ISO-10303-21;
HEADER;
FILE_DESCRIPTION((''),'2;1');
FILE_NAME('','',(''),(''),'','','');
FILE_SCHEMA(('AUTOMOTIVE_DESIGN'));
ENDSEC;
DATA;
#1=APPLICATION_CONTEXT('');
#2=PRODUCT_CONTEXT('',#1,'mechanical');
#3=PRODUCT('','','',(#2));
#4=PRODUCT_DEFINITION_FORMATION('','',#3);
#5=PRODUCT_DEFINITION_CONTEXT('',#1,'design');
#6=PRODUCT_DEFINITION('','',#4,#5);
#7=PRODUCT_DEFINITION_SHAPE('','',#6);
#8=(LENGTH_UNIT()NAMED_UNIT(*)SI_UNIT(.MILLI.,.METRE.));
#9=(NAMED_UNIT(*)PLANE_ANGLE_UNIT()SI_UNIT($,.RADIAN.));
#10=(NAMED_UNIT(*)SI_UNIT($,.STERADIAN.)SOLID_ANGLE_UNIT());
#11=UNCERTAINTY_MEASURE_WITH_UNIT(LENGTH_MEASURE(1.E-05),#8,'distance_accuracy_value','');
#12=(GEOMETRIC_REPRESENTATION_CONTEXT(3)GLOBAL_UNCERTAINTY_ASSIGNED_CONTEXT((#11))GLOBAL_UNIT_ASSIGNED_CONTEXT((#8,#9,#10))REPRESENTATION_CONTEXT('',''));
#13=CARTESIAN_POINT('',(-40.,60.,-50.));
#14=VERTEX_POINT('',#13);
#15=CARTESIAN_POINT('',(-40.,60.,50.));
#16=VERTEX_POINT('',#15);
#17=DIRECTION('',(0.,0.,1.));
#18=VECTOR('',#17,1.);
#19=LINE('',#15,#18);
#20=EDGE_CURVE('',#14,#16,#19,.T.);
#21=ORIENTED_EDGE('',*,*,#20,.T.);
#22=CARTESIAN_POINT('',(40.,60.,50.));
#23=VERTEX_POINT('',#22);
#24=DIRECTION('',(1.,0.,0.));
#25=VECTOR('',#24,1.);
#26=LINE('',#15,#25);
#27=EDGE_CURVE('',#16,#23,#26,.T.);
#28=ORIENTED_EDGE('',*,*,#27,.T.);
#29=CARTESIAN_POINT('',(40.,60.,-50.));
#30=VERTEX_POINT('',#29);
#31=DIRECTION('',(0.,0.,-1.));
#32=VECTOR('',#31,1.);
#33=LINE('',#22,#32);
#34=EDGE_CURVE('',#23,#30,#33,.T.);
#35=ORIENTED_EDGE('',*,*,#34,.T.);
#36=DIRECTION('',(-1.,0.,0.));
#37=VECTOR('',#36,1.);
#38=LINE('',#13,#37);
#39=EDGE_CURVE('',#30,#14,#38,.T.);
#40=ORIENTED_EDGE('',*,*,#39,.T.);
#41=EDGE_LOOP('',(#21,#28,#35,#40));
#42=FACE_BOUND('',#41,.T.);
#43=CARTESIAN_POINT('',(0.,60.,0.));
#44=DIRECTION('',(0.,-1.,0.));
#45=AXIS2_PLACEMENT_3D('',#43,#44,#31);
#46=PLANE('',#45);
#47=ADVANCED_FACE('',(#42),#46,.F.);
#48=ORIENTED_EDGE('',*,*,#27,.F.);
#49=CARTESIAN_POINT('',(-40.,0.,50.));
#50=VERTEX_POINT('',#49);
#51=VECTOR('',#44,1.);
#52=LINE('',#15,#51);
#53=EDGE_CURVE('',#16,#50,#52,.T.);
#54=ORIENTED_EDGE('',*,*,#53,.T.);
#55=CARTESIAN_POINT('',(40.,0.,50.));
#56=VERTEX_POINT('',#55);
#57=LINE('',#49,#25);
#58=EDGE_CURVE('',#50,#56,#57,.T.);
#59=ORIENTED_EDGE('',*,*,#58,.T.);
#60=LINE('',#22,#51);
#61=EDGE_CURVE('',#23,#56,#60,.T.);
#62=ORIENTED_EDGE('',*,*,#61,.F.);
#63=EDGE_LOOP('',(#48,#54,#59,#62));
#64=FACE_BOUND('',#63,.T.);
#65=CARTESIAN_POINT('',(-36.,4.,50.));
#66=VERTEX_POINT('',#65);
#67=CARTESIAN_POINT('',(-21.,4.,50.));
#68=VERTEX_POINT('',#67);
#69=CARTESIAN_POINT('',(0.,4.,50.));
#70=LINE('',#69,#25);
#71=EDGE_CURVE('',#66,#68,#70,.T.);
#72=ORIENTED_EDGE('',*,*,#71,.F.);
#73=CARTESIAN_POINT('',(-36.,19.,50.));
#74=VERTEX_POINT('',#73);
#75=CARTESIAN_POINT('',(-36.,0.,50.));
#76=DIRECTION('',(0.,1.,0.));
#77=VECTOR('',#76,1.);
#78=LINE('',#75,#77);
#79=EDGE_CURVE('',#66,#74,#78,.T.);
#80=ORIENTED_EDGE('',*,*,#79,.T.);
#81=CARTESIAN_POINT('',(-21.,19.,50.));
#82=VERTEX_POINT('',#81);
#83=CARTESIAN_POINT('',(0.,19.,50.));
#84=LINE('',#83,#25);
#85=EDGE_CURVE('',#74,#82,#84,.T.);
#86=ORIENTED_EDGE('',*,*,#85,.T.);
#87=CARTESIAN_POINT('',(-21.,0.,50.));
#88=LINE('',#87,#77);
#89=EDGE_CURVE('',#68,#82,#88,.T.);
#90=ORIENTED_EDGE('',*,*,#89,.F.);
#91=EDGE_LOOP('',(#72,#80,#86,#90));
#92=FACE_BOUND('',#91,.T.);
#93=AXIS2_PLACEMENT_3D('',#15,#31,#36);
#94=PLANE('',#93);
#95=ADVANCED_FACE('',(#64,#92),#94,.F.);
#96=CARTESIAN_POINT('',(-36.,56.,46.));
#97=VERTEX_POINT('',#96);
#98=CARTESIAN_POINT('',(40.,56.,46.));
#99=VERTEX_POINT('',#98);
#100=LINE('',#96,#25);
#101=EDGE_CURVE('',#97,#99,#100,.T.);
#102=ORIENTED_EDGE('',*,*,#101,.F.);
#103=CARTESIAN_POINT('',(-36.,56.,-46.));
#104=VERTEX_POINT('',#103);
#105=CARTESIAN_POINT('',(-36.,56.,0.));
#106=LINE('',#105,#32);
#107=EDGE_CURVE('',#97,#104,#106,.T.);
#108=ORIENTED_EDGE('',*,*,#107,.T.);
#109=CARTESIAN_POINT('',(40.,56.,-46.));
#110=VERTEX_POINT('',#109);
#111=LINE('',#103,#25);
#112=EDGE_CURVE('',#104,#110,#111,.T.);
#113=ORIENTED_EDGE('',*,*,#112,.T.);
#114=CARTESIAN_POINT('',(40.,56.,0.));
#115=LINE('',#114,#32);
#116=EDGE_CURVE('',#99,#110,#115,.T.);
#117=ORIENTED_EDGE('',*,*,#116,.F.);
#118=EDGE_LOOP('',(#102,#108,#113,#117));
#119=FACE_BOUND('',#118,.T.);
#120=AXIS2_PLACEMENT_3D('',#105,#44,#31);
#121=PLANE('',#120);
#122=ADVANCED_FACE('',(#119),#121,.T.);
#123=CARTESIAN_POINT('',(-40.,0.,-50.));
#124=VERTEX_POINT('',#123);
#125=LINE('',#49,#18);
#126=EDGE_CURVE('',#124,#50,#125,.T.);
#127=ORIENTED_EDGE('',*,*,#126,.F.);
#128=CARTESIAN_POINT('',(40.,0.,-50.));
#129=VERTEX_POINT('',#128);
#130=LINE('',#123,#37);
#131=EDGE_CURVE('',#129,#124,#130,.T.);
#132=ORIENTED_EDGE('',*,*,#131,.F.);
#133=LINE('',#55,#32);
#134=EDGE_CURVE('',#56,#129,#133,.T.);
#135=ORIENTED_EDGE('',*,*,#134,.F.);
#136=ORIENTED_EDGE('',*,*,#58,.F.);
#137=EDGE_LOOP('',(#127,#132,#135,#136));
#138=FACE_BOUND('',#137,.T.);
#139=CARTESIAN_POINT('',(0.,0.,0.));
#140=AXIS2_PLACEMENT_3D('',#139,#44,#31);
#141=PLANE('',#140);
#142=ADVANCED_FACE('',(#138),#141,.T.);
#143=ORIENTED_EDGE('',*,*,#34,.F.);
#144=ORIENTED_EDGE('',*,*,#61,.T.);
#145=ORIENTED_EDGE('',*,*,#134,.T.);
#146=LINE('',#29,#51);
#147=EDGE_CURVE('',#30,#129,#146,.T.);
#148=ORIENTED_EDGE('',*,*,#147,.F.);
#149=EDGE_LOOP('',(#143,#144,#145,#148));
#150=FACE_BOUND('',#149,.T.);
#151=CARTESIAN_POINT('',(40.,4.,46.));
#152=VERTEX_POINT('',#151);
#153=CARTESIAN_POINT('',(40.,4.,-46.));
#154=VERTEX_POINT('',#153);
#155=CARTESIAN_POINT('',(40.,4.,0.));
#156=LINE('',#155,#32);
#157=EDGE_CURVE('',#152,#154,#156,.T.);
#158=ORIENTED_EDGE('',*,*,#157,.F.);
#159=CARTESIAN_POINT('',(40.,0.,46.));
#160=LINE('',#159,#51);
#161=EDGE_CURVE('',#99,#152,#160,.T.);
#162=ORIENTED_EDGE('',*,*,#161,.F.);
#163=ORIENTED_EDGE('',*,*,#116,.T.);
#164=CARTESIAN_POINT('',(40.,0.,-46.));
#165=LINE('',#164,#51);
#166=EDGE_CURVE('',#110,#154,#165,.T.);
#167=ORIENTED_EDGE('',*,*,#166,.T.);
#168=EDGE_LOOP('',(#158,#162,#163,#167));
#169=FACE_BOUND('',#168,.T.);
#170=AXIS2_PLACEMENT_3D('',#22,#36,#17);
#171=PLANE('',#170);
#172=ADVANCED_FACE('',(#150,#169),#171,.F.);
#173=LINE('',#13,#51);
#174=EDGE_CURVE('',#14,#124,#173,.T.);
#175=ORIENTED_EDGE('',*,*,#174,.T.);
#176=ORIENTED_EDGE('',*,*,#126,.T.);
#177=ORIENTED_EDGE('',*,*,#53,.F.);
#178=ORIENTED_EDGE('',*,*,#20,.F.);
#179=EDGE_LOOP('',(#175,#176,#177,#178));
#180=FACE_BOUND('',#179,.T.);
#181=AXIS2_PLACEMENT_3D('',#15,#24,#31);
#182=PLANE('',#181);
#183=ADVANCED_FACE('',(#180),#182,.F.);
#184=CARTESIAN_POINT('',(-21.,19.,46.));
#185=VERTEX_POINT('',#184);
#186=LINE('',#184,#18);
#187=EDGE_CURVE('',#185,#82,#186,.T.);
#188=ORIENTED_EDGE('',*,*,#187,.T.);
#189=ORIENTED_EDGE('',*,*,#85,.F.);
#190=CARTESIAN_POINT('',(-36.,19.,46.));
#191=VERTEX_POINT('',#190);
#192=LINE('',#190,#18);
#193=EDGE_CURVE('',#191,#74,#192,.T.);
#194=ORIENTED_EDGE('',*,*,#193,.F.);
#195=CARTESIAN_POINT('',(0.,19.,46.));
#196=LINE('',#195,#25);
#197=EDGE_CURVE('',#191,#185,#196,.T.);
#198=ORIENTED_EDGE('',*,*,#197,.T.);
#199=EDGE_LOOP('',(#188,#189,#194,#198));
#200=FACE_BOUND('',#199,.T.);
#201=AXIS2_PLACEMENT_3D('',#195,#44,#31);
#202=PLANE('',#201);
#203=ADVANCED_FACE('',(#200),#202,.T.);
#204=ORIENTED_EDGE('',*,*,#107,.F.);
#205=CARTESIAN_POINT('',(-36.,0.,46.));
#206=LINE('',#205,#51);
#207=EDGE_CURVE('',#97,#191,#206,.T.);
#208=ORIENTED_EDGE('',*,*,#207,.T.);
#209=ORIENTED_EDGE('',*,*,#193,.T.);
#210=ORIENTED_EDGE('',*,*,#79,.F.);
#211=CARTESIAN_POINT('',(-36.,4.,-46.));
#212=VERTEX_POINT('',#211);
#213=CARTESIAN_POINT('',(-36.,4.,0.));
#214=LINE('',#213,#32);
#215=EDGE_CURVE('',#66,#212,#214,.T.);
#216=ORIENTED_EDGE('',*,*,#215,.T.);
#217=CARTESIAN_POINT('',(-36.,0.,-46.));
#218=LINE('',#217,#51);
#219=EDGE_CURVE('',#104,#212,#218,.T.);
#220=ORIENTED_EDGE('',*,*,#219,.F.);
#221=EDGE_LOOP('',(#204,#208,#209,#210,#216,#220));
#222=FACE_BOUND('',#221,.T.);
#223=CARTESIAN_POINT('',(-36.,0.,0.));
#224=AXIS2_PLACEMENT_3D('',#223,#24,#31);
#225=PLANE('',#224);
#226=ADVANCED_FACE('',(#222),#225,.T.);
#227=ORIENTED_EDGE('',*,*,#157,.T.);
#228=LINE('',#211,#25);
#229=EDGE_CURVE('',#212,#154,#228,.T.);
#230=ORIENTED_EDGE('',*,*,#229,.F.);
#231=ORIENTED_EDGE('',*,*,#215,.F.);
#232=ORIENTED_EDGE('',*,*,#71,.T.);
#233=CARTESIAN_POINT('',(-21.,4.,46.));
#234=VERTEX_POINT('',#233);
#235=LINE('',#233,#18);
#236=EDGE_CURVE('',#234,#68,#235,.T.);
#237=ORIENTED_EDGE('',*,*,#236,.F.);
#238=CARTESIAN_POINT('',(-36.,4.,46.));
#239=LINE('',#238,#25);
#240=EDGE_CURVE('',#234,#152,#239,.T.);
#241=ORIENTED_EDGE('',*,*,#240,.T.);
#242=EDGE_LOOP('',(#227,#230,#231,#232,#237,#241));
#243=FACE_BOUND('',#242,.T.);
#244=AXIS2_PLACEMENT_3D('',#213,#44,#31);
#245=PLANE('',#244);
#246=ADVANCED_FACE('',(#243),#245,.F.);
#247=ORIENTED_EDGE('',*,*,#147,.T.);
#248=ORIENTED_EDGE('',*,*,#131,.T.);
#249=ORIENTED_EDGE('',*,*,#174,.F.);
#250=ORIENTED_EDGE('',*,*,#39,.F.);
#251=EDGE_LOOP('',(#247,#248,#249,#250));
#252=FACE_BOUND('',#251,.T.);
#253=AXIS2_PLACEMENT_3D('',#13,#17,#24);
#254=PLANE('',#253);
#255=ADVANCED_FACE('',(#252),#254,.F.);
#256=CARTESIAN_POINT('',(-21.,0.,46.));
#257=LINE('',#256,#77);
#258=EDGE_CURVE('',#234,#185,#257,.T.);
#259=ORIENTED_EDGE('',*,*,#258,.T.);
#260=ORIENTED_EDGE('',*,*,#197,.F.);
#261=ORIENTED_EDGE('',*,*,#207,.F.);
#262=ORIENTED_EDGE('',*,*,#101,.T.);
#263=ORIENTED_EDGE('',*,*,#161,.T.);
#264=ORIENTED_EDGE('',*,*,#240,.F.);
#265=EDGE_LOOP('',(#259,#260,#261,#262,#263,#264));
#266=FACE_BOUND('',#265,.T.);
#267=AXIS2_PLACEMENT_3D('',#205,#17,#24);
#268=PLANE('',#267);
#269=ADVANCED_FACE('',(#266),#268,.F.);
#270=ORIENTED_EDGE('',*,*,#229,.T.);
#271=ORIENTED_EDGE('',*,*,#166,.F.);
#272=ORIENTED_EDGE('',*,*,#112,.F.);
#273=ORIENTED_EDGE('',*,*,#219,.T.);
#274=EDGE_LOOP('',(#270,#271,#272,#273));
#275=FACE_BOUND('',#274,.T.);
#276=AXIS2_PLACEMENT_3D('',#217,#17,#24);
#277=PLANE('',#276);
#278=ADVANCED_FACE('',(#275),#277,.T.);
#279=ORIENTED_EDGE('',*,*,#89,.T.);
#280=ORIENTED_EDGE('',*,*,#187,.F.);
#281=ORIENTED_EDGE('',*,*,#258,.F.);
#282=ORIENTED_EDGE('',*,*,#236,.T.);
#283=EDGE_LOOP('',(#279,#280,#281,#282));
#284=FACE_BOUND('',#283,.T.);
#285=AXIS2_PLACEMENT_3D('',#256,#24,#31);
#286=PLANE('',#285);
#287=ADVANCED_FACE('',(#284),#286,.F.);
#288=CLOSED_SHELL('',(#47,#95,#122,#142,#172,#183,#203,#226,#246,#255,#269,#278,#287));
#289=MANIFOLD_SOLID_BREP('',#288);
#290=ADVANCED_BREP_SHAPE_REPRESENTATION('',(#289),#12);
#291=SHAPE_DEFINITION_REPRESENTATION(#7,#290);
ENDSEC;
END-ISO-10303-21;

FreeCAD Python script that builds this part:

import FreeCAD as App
import Part
import Sketcher

V = App.Vector
Q = App.Units.Quantity


def add_polygon(sketch, points):
    """Adds a closed chain of lines whose ends are joined by coincident constraints."""
    first, n = sketch.GeometryCount, len(points)
    for a, b in zip(points, points[1:] + points[:1]):
        sketch.addGeometry(Part.LineSegment(App.Vector(*a, 0), App.Vector(*b, 0)), False)
    for i in range(n):
        sketch.addConstraint(Sketcher.Constraint("Coincident", first + i, 2, first + (i + 1) % n, 1))

doc = App.newDocument("Part")
params = doc.addObject("Spreadsheet::Sheet", "Params")
for row, (alias, value) in enumerate([
    ("sketch1_width", "80 mm"),
    ("sketch1_height", "100 mm"),
    ("pad1_length", "60 mm"),
    ("sketch2_width", "52 mm"),
    ("sketch2_height", "92 mm"),
    ("pocket1_length", "76 mm"),
    ("sketch3_width", "15 mm"),
    ("pocket2_length", "4 mm"),
], start=1):
    params.set(f"A{row}", alias)
    params.set(f"B{row}", "=" + value)
    params.setAlias(f"B{row}", alias)

body = doc.addObject("PartDesign::Body", "Body")

sketch1 = doc.addObject("Sketcher::SketchObject", "Sketch")
body.addObject(sketch1)
sketch1.AttachmentSupport = (doc.XZ_Plane, [""])
sketch1.MapMode = "FlatFace"
add_polygon(sketch1, [(-40, -50), (-40, 50), (40, 50), (40, -50)])
sketch1.addConstraint(Sketcher.Constraint("Vertical", 0))
sketch1.addConstraint(Sketcher.Constraint("Horizontal", 1))
sketch1.addConstraint(Sketcher.Constraint("Vertical", 2))
sketch1.addConstraint(Sketcher.Constraint("Horizontal", 3))
sketch1.addConstraint(Sketcher.Constraint("Symmetric", 0, 2, 2, 2, -1, 1))
sketch1.addConstraint(Sketcher.Constraint("DistanceX", 1, 1, 1, 2, Q("80 mm")))
sketch1.addConstraint(Sketcher.Constraint("DistanceY", 0, 1, 0, 2, Q("100 mm")))
sketch1.setExpression("Constraints[9]", "Params.sketch1_width")
sketch1.setExpression("Constraints[10]", "Params.sketch1_height")
pad1 = doc.addObject("PartDesign::Pad", "Pad")
body.addObject(pad1)
pad1.Profile = sketch1
pad1.setExpression("Length", "Params.pad1_length")
pad1.Reversed = True

sketch2 = doc.addObject("Sketcher::SketchObject", "Sketch001")
body.addObject(sketch2)
sketch2.AttachmentSupport = (doc.YZ_Plane, [""])
sketch2.MapMode = "FlatFace"
sketch2.AttachmentOffset = App.Placement(V(0, 0, 40), App.Rotation())
add_polygon(sketch2, [(56, 46), (4, 46), (4, -46), (56, -46)])
sketch2.addConstraint(Sketcher.Constraint("Horizontal", 0))
sketch2.addConstraint(Sketcher.Constraint("Vertical", 1))
sketch2.addConstraint(Sketcher.Constraint("Horizontal", 2))
sketch2.addConstraint(Sketcher.Constraint("Vertical", 3))
sketch2.addConstraint(Sketcher.Constraint("DistanceX", 0, 2, 0, 1, Q("52 mm")))
sketch2.addConstraint(Sketcher.Constraint("DistanceY", 1, 2, 1, 1, Q("92 mm")))
sketch2.addConstraint(Sketcher.Constraint("DistanceX", -1, 1, 0, 2, Q("4 mm")))
sketch2.addConstraint(Sketcher.Constraint("DistanceY", -1, 1, 0, 2, Q("46 mm")))
sketch2.setExpression("Constraints[8]", "Params.sketch2_width")
sketch2.setExpression("Constraints[9]", "Params.sketch2_height")
pocket1 = doc.addObject("PartDesign::Pocket", "Pocket")
body.addObject(pocket1)
pocket1.Profile = sketch2
pocket1.setExpression("Length", "Params.pocket1_length")

sketch3 = doc.addObject("Sketcher::SketchObject", "Sketch002")
body.addObject(sketch3)
sketch3.AttachmentSupport = (doc.XY_Plane, [""])
sketch3.MapMode = "FlatFace"
sketch3.AttachmentOffset = App.Placement(V(0, 0, 50), App.Rotation())
add_polygon(sketch3, [(-36, 19), (-36, 4), (-21, 4), (-21, 19)])
sketch3.addConstraint(Sketcher.Constraint("Vertical", 0))
sketch3.addConstraint(Sketcher.Constraint("Horizontal", 1))
sketch3.addConstraint(Sketcher.Constraint("Vertical", 2))
sketch3.addConstraint(Sketcher.Constraint("Horizontal", 3))
sketch3.addConstraint(Sketcher.Constraint("Equal", 3, 0))
sketch3.addConstraint(Sketcher.Constraint("DistanceX", 1, 1, 1, 2, Q("15 mm")))
sketch3.addConstraint(Sketcher.Constraint("DistanceX", 0, 2, -1, 1, Q("36 mm")))
sketch3.addConstraint(Sketcher.Constraint("DistanceY", -1, 1, 0, 2, Q("4 mm")))
sketch3.setExpression("Constraints[9]", "Params.sketch3_width")
pocket2 = doc.addObject("PartDesign::Pocket", "Pocket001")
body.addObject(pocket2)
pocket2.Profile = sketch3
pocket2.setExpression("Length", "Params.pocket2_length")

doc.recompute()
